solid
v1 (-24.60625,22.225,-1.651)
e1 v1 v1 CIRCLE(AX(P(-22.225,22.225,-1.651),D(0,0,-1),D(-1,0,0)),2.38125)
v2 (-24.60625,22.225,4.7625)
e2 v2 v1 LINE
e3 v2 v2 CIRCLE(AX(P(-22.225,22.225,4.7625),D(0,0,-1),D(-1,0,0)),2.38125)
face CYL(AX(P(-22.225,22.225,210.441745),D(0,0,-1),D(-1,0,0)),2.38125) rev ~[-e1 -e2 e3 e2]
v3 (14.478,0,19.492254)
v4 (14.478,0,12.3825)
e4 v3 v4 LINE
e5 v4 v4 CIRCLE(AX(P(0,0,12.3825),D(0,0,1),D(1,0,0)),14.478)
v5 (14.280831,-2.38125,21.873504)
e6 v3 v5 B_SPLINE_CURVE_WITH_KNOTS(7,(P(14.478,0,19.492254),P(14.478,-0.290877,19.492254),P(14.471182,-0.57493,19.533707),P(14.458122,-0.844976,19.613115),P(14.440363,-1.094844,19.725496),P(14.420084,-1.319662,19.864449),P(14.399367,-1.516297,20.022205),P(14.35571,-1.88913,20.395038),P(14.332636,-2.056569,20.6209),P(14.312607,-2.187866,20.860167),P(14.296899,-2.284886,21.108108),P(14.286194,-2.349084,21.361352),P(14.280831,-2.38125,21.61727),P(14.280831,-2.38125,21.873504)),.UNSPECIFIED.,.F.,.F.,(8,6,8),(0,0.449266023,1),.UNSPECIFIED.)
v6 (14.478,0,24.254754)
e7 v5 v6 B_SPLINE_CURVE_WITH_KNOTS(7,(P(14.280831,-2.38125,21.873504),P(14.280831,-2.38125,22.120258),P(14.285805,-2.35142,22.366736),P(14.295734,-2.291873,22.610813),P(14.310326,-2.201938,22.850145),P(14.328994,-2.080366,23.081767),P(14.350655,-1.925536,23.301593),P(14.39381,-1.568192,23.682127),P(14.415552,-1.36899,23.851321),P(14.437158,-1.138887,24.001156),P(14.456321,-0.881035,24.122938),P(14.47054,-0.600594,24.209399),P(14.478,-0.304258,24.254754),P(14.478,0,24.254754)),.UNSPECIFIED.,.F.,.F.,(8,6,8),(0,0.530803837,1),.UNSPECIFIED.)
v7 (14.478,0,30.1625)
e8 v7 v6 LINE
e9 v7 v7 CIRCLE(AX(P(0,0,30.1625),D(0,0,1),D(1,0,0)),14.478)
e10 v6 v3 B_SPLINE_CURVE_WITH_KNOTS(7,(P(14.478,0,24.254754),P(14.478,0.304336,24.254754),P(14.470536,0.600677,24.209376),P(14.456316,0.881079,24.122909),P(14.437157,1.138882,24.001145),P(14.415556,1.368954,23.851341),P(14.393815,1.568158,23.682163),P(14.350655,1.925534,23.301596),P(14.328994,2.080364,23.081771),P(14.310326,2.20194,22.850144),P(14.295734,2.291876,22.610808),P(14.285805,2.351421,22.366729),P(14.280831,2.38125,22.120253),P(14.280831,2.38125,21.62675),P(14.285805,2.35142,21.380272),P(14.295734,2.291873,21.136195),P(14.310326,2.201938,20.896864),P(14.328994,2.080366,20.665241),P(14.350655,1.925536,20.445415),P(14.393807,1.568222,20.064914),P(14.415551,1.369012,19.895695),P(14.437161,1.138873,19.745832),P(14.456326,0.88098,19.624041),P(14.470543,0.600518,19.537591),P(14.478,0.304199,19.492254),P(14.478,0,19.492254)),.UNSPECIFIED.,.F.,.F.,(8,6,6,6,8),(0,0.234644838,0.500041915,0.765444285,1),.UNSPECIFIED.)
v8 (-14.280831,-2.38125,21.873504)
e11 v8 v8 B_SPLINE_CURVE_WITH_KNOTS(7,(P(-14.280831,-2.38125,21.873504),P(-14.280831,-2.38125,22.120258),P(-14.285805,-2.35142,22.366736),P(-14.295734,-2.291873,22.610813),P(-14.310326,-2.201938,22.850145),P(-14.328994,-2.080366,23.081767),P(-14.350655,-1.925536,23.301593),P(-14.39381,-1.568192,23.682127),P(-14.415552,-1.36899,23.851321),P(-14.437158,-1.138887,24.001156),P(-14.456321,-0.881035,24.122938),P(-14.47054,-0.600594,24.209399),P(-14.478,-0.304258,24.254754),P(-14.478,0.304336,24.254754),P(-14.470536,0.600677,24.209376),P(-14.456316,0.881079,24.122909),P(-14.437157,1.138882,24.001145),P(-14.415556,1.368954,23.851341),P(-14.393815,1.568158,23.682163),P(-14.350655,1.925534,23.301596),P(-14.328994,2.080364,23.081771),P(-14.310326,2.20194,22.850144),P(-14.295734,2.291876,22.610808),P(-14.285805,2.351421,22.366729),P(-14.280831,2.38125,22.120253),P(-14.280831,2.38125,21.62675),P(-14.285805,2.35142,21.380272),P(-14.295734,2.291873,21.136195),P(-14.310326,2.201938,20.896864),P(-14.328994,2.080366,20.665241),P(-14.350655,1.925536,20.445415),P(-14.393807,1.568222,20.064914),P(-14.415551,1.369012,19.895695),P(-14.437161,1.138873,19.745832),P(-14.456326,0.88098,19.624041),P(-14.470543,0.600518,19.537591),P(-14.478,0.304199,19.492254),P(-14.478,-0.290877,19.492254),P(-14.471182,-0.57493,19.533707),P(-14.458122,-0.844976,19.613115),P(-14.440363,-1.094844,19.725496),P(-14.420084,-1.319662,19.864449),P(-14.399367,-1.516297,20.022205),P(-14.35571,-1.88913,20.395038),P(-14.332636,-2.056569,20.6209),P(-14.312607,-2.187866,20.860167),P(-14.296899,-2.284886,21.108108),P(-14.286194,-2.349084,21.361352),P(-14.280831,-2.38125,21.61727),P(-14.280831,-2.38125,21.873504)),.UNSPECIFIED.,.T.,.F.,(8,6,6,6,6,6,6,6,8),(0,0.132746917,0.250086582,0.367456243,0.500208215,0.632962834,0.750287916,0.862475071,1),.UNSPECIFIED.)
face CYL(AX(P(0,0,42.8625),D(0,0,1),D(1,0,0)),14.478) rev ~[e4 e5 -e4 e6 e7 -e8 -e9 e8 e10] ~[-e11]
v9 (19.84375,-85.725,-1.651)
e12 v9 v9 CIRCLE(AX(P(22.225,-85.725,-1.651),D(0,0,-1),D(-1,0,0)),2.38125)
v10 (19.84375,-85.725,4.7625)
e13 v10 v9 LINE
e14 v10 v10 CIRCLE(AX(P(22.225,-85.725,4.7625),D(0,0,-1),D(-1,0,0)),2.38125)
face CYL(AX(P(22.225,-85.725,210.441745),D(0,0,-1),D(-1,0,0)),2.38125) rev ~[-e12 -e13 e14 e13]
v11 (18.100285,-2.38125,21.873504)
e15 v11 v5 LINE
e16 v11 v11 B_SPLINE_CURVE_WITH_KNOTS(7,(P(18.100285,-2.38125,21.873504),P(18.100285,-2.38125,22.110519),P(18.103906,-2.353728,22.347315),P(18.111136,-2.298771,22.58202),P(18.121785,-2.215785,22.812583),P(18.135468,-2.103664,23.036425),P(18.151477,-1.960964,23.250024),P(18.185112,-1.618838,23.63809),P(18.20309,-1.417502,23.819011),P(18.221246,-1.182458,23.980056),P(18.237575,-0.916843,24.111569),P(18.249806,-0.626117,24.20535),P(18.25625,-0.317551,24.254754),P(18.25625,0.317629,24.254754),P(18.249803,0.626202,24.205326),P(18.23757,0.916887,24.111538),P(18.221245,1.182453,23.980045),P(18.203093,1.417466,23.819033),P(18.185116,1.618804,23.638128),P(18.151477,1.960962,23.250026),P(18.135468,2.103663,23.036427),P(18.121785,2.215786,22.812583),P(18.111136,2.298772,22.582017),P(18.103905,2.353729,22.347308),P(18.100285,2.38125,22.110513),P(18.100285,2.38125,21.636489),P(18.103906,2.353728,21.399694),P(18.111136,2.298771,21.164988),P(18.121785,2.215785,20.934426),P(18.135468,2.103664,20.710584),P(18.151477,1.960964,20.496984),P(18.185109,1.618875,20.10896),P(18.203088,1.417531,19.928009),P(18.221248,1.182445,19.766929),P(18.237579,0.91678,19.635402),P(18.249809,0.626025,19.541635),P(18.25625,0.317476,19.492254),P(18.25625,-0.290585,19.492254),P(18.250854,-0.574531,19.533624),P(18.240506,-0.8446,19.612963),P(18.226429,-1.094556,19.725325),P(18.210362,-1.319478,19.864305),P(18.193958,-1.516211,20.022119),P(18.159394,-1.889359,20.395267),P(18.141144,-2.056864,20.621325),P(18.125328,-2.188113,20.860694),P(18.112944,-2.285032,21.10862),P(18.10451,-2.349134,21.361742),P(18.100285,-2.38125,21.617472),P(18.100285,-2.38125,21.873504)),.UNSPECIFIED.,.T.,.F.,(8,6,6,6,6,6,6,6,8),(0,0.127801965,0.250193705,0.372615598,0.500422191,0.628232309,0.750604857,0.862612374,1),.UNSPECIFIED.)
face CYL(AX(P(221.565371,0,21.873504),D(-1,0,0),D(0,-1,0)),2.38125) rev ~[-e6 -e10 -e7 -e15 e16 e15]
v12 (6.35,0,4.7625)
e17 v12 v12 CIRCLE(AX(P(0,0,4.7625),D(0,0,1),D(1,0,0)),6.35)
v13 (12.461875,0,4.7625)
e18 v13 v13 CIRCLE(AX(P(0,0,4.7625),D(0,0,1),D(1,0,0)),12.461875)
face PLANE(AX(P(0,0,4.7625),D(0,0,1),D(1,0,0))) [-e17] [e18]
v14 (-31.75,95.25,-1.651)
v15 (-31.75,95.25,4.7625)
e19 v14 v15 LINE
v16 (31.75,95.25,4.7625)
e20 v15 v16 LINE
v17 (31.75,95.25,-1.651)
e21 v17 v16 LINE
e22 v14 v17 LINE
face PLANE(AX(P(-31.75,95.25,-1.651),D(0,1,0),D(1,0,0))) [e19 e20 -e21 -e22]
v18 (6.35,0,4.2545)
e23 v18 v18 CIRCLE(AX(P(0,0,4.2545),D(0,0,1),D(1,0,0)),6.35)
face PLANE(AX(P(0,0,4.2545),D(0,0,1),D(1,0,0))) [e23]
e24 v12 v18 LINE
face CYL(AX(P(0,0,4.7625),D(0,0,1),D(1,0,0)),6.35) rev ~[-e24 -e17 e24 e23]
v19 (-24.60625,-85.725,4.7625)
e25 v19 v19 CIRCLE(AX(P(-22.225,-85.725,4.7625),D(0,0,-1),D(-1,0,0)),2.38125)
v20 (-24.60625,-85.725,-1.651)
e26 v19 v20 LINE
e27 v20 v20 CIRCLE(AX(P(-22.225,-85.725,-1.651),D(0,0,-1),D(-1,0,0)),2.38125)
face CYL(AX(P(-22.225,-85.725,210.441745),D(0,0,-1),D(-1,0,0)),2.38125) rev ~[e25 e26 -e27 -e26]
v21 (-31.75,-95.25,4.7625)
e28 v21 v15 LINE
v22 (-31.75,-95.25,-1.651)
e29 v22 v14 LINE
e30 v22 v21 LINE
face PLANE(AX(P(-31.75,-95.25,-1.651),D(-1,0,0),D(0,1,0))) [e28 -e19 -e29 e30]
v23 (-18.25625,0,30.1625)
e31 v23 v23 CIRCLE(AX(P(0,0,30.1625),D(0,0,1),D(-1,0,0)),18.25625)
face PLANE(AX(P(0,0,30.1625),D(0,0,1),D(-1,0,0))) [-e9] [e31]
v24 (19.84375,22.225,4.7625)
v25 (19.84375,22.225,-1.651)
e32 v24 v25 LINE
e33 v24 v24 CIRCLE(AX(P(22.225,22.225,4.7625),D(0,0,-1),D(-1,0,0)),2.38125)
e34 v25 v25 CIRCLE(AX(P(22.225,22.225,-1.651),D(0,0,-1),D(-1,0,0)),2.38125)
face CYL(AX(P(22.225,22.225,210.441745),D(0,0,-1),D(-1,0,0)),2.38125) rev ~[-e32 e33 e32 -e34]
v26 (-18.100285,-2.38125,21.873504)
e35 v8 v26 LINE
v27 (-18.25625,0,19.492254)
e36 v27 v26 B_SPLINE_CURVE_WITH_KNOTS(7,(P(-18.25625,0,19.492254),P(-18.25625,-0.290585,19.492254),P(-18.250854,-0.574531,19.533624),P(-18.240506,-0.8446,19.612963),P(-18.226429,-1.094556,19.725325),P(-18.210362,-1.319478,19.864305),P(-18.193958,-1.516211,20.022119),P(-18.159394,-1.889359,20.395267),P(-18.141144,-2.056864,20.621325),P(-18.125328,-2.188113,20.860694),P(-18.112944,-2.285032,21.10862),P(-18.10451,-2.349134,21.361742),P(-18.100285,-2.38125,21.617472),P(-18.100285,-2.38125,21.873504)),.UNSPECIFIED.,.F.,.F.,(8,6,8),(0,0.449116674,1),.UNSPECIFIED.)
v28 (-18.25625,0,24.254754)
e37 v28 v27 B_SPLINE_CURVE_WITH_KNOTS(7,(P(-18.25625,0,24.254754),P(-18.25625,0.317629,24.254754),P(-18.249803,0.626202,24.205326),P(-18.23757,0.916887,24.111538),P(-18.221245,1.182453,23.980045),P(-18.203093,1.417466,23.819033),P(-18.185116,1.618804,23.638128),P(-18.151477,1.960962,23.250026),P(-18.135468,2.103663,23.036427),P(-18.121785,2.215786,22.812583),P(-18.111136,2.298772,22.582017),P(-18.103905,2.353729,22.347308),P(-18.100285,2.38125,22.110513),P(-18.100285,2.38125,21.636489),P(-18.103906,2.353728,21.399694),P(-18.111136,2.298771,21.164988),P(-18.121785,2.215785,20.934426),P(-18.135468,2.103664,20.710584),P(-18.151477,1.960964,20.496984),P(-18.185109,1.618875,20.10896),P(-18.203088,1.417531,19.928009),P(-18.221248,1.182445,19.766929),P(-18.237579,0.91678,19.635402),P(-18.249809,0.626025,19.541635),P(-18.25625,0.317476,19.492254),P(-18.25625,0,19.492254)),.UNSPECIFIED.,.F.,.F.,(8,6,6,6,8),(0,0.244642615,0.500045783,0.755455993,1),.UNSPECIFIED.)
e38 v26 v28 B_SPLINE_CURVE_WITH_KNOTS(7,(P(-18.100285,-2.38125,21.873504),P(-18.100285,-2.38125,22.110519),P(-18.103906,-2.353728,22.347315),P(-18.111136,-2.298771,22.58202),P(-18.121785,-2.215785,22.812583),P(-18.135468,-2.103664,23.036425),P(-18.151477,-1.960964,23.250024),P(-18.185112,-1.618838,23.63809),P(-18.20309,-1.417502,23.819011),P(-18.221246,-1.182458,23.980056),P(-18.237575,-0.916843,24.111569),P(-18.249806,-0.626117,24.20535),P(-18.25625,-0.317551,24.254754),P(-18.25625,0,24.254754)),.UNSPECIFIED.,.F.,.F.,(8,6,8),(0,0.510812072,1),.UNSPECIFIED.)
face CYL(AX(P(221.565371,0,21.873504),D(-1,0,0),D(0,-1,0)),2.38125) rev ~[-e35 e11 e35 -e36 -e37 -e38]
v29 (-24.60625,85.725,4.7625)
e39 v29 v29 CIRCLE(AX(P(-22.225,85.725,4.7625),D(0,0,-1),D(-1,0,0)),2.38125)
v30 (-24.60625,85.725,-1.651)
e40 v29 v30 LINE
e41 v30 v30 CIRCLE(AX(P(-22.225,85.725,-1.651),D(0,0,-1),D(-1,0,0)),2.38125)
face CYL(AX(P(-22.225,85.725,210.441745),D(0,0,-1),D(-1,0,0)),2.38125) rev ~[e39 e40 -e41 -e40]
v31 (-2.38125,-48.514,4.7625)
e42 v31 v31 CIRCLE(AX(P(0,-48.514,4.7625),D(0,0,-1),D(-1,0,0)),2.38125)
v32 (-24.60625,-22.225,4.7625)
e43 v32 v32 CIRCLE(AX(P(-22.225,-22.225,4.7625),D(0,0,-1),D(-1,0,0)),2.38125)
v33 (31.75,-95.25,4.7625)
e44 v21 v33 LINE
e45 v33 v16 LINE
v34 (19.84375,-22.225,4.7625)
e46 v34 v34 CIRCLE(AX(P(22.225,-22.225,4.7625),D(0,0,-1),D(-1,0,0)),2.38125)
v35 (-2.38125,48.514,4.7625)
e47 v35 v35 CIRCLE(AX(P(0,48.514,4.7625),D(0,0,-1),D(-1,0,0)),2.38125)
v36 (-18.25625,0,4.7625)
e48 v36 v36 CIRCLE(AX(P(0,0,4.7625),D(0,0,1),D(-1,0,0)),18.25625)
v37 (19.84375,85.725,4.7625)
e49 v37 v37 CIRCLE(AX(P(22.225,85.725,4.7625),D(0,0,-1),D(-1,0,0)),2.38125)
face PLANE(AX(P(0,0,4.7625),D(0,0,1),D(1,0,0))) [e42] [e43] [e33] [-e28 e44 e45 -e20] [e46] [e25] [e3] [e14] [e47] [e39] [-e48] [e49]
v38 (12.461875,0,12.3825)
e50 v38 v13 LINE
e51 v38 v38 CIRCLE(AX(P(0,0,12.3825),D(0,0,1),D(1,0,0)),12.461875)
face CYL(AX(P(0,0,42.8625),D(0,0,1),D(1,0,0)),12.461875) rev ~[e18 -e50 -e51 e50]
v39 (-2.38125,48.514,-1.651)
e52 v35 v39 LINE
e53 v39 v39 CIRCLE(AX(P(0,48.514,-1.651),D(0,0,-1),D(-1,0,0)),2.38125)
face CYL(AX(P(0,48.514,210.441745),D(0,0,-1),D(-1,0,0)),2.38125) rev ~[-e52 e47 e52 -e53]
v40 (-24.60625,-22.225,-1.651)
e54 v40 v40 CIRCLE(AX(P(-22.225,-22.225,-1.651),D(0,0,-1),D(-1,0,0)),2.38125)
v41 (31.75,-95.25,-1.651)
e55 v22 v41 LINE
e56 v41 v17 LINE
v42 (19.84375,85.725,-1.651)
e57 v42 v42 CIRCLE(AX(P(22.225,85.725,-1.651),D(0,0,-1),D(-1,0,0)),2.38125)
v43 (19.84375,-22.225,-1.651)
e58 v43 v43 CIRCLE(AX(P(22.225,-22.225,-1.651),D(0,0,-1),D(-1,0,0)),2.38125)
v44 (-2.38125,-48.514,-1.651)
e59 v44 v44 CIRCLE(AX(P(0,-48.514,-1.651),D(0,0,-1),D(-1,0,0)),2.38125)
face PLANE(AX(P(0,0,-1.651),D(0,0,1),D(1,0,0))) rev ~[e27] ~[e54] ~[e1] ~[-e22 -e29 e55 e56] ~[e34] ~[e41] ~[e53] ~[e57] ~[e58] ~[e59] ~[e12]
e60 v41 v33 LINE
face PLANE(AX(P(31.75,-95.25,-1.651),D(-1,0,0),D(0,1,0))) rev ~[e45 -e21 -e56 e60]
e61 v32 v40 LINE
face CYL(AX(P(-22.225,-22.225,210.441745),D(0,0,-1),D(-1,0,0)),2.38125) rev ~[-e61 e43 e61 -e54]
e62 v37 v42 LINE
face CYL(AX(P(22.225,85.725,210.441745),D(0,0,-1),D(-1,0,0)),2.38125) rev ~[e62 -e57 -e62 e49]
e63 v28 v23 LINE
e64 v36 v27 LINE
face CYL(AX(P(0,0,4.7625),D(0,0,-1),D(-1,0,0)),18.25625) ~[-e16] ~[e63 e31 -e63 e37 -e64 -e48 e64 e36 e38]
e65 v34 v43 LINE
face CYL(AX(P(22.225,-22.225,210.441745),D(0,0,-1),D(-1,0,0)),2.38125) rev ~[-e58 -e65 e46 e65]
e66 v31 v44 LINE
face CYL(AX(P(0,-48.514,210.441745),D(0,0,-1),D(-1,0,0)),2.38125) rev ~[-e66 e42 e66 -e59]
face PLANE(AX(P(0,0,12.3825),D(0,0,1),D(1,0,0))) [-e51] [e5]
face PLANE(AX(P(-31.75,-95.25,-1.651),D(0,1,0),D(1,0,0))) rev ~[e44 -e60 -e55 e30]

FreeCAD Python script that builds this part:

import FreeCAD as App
import Part
import Sketcher

V = App.Vector
Q = App.Units.Quantity


def add_polygon(sketch, points):
    """Adds a closed chain of lines whose ends are joined by coincident constraints."""
    first, n = sketch.GeometryCount, len(points)
    for a, b in zip(points, points[1:] + points[:1]):
        sketch.addGeometry(Part.LineSegment(App.Vector(*a, 0), App.Vector(*b, 0)), False)
    for i in range(n):
        sketch.addConstraint(Sketcher.Constraint("Coincident", first + i, 2, first + (i + 1) % n, 1))

doc = App.newDocument("Part")
params = doc.addObject("Spreadsheet::Sheet", "Params")
for row, (alias, value) in enumerate([
    ("sketch1_width", "2.5 in"),
    ("sketch1_height", "7.5 in"),
    ("pad1_length", "0.1875 in"),
    ("pad1_length2", "0.065 in"),
    ("sketch2_diameter", "0.5 in"),
    ("pocket1_length", "0.02 in"),
    ("sketch3_diameter", "1.4375 in"),
    ("pad2_length", "1.5 in"),
    ("pocket2_length", "1.5 in"),
    ("sketch5_diameter", "1.125 in"),
    ("pocket3_length", "1.2 in"),
    ("sketch6_diameter", "0.1875 in"),
    ("hole_diameter", "0.1875 in"),
    ("sketch7_diameter", "1.14 in"),
    ("pocket4_length", "1.2 in"),
    ("sketch8_diameter", "1.4375 in"),
    ("pocket5_length", "0.5 in"),
    ("sketch9_diameter", "0.1875 in"),
    ("hole2_diameter", "0.1875 in"),
], start=1):
    params.set(f"A{row}", alias)
    params.set(f"B{row}", "=" + value)
    params.setAlias(f"B{row}", alias)

body = doc.addObject("PartDesign::Body", "Body")

# Sketch on XY plane
sketch1 = doc.addObject("Sketcher::SketchObject", "Sketch")
body.addObject(sketch1)
sketch1.AttachmentSupport = (doc.XY_Plane, [""])
sketch1.MapMode = "FlatFace"
add_polygon(sketch1, [(-31.75, 95.25), (-31.75, -95.25), (31.75, -95.25), (31.75, 95.25)])  # lines 0-3
sketch1.addConstraint(Sketcher.Constraint("Vertical", 0))
sketch1.addConstraint(Sketcher.Constraint("Horizontal", 1))
sketch1.addConstraint(Sketcher.Constraint("Vertical", 2))
sketch1.addConstraint(Sketcher.Constraint("Horizontal", 3))
sketch1.addConstraint(Sketcher.Constraint("Symmetric", 0, 2, 2, 2, -1, 1))
sketch1.addConstraint(Sketcher.Constraint("DistanceX", 1, 1, 1, 2, Q("2.5 in")))
sketch1.addConstraint(Sketcher.Constraint("DistanceY", 0, 2, 0, 1, Q("7.5 in")))
sketch1.setExpression("Constraints[9]", "Params.sketch1_width")
sketch1.setExpression("Constraints[10]", "Params.sketch1_height")
pad1 = doc.addObject("PartDesign::Pad", "Pad")
body.addObject(pad1)
pad1.Profile = sketch1
pad1.Type = "TwoLengths"
pad1.setExpression("Length", "Params.pad1_length")
pad1.setExpression("Length2", "Params.pad1_length2")

# Sketch on XY plane
sketch2 = doc.addObject("Sketcher::SketchObject", "Sketch001")
body.addObject(sketch2)
sketch2.AttachmentSupport = (doc.XY_Plane, [""])
sketch2.MapMode = "FlatFace"
sketch2.AttachmentOffset = App.Placement(V(0, 0, 0.1875 * 25.4), App.Rotation())
sketch2.addGeometry(Part.Circle(V(0, 0, 0), V(0, 0, 1), 6.35), False)
sketch2.addConstraint(Sketcher.Constraint("Coincident", 0, 3, -1, 1))
sketch2.addConstraint(Sketcher.Constraint("Diameter", 0, Q("0.5 in")))
sketch2.setExpression("Constraints[1]", "Params.sketch2_diameter")
pocket1 = doc.addObject("PartDesign::Pocket", "Pocket")
body.addObject(pocket1)
pocket1.Profile = sketch2
pocket1.setExpression("Length", "Params.pocket1_length")

# Sketch on XY plane
sketch3 = doc.addObject("Sketcher::SketchObject", "Sketch002")
body.addObject(sketch3)
sketch3.AttachmentSupport = (doc.XY_Plane, [""])
sketch3.MapMode = "FlatFace"
sketch3.AttachmentOffset = App.Placement(V(0, 0, 0.1875 * 25.4), App.Rotation())
sketch3.addGeometry(Part.Circle(V(0, 0, 0), V(0, 0, 1), 18.25625), False)
sketch3.addConstraint(Sketcher.Constraint("Coincident", 0, 3, -1, 1))
sketch3.addConstraint(Sketcher.Constraint("Diameter", 0, Q("1.4375 in")))
sketch3.setExpression("Constraints[1]", "Params.sketch3_diameter")
pad2 = doc.addObject("PartDesign::Pad", "Pad001")
body.addObject(pad2)
pad2.Profile = sketch3
pad2.setExpression("Length", "Params.pad2_length")

# Sketch on XY plane
sketch4 = doc.addObject("Sketcher::SketchObject", "Sketch003")
body.addObject(sketch4)
sketch4.AttachmentSupport = (doc.XY_Plane, [""])
sketch4.MapMode = "FlatFace"
sketch4.AttachmentOffset = App.Placement(V(0, 0, 1.6875 * 25.4), App.Rotation())
sketch4.addGeometry(Part.Circle(V(0, 0, 0), V(0, 0, 1), 12.461875), False)
sketch4.addConstraint(Sketcher.Constraint("Coincident", 0, 3, -1, 1))
sketch4.addConstraint(Sketcher.Constraint("Diameter", 0, 24.92375))
pocket2 = doc.addObject("PartDesign::Pocket", "Pocket001")
body.addObject(pocket2)
pocket2.Profile = sketch4
pocket2.setExpression("Length", "Params.pocket2_length")

# Sketch on XY plane
sketch5 = doc.addObject("Sketcher::SketchObject", "Sketch004")
body.addObject(sketch5)
sketch5.AttachmentSupport = (doc.XY_Plane, [""])
sketch5.MapMode = "FlatFace"
sketch5.AttachmentOffset = App.Placement(V(0, 0, 1.6875 * 25.4), App.Rotation())
sketch5.addGeometry(Part.Circle(V(0, 0, 0), V(0, 0, 1), 14.2875), False)
sketch5.addConstraint(Sketcher.Constraint("Coincident", 0, 3, -1, 1))
sketch5.addConstraint(Sketcher.Constraint("Diameter", 0, Q("1.125 in")))
sketch5.setExpression("Constraints[1]", "Params.sketch5_diameter")
pocket3 = doc.addObject("PartDesign::Pocket", "Pocket002")
body.addObject(pocket3)
pocket3.Profile = sketch5
pocket3.setExpression("Length", "Params.pocket3_length")

# Sketch on XY plane
sketch6 = doc.addObject("Sketcher::SketchObject", "Sketch005")
body.addObject(sketch6)
sketch6.AttachmentSupport = (doc.XY_Plane, [""])
sketch6.MapMode = "FlatFace"
sketch6.AttachmentOffset = App.Placement(V(0, 0, 0.1875 * 25.4), App.Rotation())
sketch6.addGeometry(Part.Circle(V(-22.225, 85.725, 0), V(0, 0, 1), 2.38125), False)
sketch6.addGeometry(Part.Circle(V(-22.225, -85.725, 0), V(0, 0, 1), 2.38125), False)
sketch6.addGeometry(Part.Circle(V(22.225, -85.725, 0), V(0, 0, 1), 2.38125), False)
sketch6.addGeometry(Part.Circle(V(22.225, 85.725, 0), V(0, 0, 1), 2.38125), False)
sketch6.addGeometry(Part.Circle(V(0, 48.514, 0), V(0, 0, 1), 2.38125), False)
sketch6.addGeometry(Part.Circle(V(0, -48.514, 0), V(0, 0, 1), 2.38125), False)
sketch6.addGeometry(Part.Circle(V(-22.225, 22.225, 0), V(0, 0, 1), 2.38125), False)
sketch6.addGeometry(Part.Circle(V(-22.225, -22.225, 0), V(0, 0, 1), 2.38125), False)
sketch6.addGeometry(Part.Circle(V(22.225, -22.225, 0), V(0, 0, 1), 2.38125), False)
sketch6.addGeometry(Part.Circle(V(22.225, 22.225, 0), V(0, 0, 1), 2.38125), False)
sketch6.addConstraint(Sketcher.Constraint("Equal", 0, 1))
sketch6.addConstraint(Sketcher.Constraint("Equal", 1, 2))
sketch6.addConstraint(Sketcher.Constraint("Equal", 2, 3))
sketch6.addConstraint(Sketcher.Constraint("Equal", 3, 4))
sketch6.addConstraint(Sketcher.Constraint("Equal", 4, 5))
sketch6.addConstraint(Sketcher.Constraint("Equal", 5, 6))
sketch6.addConstraint(Sketcher.Constraint("Equal", 6, 7))
sketch6.addConstraint(Sketcher.Constraint("Equal", 7, 8))
sketch6.addConstraint(Sketcher.Constraint("Equal", 8, 9))
sketch6.addConstraint(Sketcher.Constraint("Symmetric", 0, 3, 2, 3, -1, 1))
sketch6.addConstraint(Sketcher.Constraint("Symmetric", 1, 3, 3, 3, -1, 1))
sketch6.addConstraint(Sketcher.Constraint("Symmetric", 4, 3, 5, 3, -1, 1))
sketch6.addConstraint(Sketcher.Constraint("Symmetric", 6, 3, 8, 3, -1, 1))
sketch6.addConstraint(Sketcher.Constraint("Symmetric", 7, 3, 9, 3, -1, 1))
sketch6.addConstraint(Sketcher.Constraint("Symmetric", 1, 3, 2, 3, -2))
sketch6.addConstraint(Sketcher.Constraint("Symmetric", 7, 3, 8, 3, -2))
sketch6.addConstraint(Sketcher.Constraint("PointOnObject", 4, 3, -2))
sketch6.addConstraint(Sketcher.Constraint("Vertical", 1, 3, 6, 3))
sketch6.addConstraint(Sketcher.Constraint("Diameter", 0, Q("0.1875 in")))
sketch6.addConstraint(Sketcher.Constraint("DistanceY", 6, 3, 0, 3, Q("2.5 in")))
sketch6.addConstraint(Sketcher.Constraint("DistanceY", -1, 1, 4, 3, Q("1.91 in")))
sketch6.addConstraint(Sketcher.Constraint("DistanceY", 1, 3, 0, 3, Q("6.75 in")))
sketch6.addConstraint(Sketcher.Constraint("DistanceX", 1, 3, 2, 3, Q("1.75 in")))
sketch6.setExpression("Constraints[18]", "Params.sketch6_diameter")
doc.recompute()
hole = doc.addObject("PartDesign::Hole", "Hole")
body.addObject(hole)
hole.Profile = sketch6
hole.ThreadType = "None"
hole.setExpression("Diameter", "Params.hole_diameter")
hole.DepthType = "ThroughAll"

# Sketch on XY plane
sketch7 = doc.addObject("Sketcher::SketchObject", "Sketch006")
body.addObject(sketch7)
sketch7.AttachmentSupport = (doc.XY_Plane, [""])
sketch7.MapMode = "FlatFace"
sketch7.AttachmentOffset = App.Placement(V(0, 0, 1.6875 * 25.4), App.Rotation())
sketch7.addGeometry(Part.Circle(V(0, 0, 0), V(0, 0, 1), 14.478), False)
sketch7.addConstraint(Sketcher.Constraint("Coincident", 0, 3, -1, 1))
sketch7.addConstraint(Sketcher.Constraint("Diameter", 0, Q("1.14 in")))
sketch7.setExpression("Constraints[1]", "Params.sketch7_diameter")
pocket4 = doc.addObject("PartDesign::Pocket", "Pocket003")
body.addObject(pocket4)
pocket4.Profile = sketch7
pocket4.setExpression("Length", "Params.pocket4_length")

# Sketch on XY plane
sketch8 = doc.addObject("Sketcher::SketchObject", "Sketch007")
body.addObject(sketch8)
sketch8.AttachmentSupport = (doc.XY_Plane, [""])
sketch8.MapMode = "FlatFace"
sketch8.AttachmentOffset = App.Placement(V(0, 0, 1.1875 * 25.4), App.Rotation())
sketch8.addGeometry(Part.Circle(V(0, 0, 0), V(0, 0, 1), 18.25625), False)
sketch8.addConstraint(Sketcher.Constraint("Coincident", 0, 3, -1, 1))
sketch8.addConstraint(Sketcher.Constraint("Diameter", 0, Q("1.4375 in")))
sketch8.setExpression("Constraints[1]", "Params.sketch8_diameter")
pocket5 = doc.addObject("PartDesign::Pocket", "Pocket004")
body.addObject(pocket5)
pocket5.Profile = sketch8
pocket5.setExpression("Length", "Params.pocket5_length")
pocket5.Reversed = True

# Sketch on YZ plane
sketch9 = doc.addObject("Sketcher::SketchObject", "Sketch008")
body.addObject(sketch9)
sketch9.AttachmentSupport = (doc.YZ_Plane, [""])
sketch9.MapMode = "FlatFace"
sketch9.AttachmentOffset = App.Placement(V(0, 0, 0.71875 * 25.4), App.Rotation())
sketch9.addGeometry(Part.Circle(V(0, 21.873504, 0), V(0, 0, 1), 2.38125), False)
sketch9.addConstraint(Sketcher.Constraint("PointOnObject", 0, 3, -2))
sketch9.addConstraint(Sketcher.Constraint("Diameter", 0, Q("0.1875 in")))
sketch9.addConstraint(Sketcher.Constraint("DistanceY", -1, 1, 0, 3, 21.873504))
sketch9.setExpression("Constraints[1]", "Params.sketch9_diameter")
doc.recompute()
hole2 = doc.addObject("PartDesign::Hole", "Hole001")
body.addObject(hole2)
hole2.Profile = sketch9
hole2.ThreadType = "None"
hole2.setExpression("Diameter", "Params.hole2_diameter")
hole2.DepthType = "ThroughAll"

doc.recompute()
